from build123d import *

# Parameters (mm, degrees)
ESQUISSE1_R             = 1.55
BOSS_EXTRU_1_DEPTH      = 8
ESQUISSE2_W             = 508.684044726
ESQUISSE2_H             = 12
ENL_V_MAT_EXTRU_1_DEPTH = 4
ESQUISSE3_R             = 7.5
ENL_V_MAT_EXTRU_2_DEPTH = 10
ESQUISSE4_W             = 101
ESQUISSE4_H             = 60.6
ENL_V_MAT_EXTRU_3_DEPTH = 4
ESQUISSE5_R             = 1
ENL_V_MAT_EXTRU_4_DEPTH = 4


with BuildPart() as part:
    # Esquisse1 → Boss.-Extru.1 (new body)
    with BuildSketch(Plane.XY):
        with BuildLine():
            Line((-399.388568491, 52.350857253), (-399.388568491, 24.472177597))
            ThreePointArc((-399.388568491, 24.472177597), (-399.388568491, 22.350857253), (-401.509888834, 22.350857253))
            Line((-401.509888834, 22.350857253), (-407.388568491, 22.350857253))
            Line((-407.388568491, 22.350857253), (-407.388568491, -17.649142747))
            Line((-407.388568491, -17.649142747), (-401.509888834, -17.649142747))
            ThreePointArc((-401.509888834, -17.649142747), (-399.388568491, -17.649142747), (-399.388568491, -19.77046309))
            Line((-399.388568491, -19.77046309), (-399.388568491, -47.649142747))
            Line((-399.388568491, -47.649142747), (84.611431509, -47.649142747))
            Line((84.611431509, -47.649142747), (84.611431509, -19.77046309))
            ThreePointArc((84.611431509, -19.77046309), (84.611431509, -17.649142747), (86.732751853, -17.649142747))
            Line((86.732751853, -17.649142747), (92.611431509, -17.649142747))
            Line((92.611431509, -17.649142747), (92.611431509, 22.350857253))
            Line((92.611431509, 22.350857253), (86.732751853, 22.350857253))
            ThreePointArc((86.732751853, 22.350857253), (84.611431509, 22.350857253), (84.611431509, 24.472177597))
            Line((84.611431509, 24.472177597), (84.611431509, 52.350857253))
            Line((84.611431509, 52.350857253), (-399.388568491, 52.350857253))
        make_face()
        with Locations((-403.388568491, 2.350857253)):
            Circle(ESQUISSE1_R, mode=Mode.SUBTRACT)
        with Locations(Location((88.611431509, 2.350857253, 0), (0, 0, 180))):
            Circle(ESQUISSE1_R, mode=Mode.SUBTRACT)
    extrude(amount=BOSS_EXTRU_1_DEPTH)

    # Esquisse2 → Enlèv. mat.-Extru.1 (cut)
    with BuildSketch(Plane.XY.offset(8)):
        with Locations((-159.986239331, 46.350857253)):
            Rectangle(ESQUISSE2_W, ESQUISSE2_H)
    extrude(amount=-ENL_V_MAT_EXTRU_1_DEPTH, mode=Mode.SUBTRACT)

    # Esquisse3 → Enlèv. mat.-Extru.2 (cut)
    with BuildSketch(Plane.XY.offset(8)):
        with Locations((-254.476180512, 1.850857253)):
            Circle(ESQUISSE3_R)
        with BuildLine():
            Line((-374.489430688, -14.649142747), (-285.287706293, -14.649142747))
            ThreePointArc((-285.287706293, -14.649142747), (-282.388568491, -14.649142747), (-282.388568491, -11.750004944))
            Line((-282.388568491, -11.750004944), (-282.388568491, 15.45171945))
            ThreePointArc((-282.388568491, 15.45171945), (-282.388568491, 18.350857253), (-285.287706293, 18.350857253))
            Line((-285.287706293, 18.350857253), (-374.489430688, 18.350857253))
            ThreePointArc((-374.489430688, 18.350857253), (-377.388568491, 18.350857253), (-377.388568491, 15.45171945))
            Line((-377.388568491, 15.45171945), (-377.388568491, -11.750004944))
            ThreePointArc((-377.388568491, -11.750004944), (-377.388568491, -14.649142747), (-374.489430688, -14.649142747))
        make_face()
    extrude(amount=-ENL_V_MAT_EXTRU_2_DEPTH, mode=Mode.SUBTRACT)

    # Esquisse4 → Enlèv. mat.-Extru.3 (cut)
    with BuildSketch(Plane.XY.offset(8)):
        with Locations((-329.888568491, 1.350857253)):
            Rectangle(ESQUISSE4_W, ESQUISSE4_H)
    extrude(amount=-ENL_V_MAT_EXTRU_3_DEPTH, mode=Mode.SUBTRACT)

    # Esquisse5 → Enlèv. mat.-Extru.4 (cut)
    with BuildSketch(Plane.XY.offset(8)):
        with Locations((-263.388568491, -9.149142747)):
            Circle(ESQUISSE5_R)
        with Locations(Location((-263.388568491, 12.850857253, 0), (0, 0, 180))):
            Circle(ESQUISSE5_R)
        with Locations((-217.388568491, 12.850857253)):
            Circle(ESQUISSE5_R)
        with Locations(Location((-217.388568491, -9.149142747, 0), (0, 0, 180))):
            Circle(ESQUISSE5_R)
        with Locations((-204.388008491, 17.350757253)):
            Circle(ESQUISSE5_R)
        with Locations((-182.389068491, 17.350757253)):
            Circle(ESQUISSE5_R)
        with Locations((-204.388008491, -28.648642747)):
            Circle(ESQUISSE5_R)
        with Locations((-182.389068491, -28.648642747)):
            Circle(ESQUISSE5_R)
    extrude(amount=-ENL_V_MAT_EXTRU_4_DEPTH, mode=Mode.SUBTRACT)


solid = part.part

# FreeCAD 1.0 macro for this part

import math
import FreeCAD as App
import Part
import Sketcher

V = App.Vector
Q = App.Units.Quantity

doc = App.newDocument("Part")
body = doc.addObject("PartDesign::Body", "Body")

# Sketch on XY plane
sketch1 = body.newObject("Sketcher::SketchObject", "Sketch")
sketch1.AttachmentSupport = (doc.getObject("XY_Plane"), [""])
sketch1.MapMode = "FlatFace"
sketch1.addGeometry(Part.LineSegment(V(-399.388568, 52.350857, 0), V(-399.388568, 24.472178, 0)), False)
sketch1.addGeometry(Part.ArcOfCircle(Part.Circle(V(-400.449229, 23.411517, 0), V(0, 0, 1), 1.5), math.radians(-135), math.radians(45)), False)
sketch1.addGeometry(Part.LineSegment(V(-401.509889, 22.350857, 0), V(-407.388568, 22.350857, 0)), False)
sketch1.addGeometry(Part.LineSegment(V(-407.388568, 22.350857, 0), V(-407.388568, -17.649143, 0)), False)
sketch1.addGeometry(Part.LineSegment(V(-407.388568, -17.649143, 0), V(-401.509889, -17.649143, 0)), False)
sketch1.addGeometry(Part.ArcOfCircle(Part.Circle(V(-400.449229, -18.709803, 0), V(0, 0, 1), 1.5), math.radians(-45), math.radians(135)), False)
sketch1.addGeometry(Part.LineSegment(V(-399.388568, -19.770463, 0), V(-399.388568, -47.649143, 0)), False)
sketch1.addGeometry(Part.LineSegment(V(-399.388568, -47.649143, 0), V(84.611432, -47.649143, 0)), False)
sketch1.addGeometry(Part.LineSegment(V(84.611432, -47.649143, 0), V(84.611432, -19.770463, 0)), False)
sketch1.addGeometry(Part.ArcOfCircle(Part.Circle(V(85.672092, -18.709803, 0), V(0, 0, 1), 1.5), math.radians(45), math.radians(225)), False)
sketch1.addGeometry(Part.LineSegment(V(86.732752, -17.649143, 0), V(92.611432, -17.649143, 0)), False)
sketch1.addGeometry(Part.LineSegment(V(92.611432, -17.649143, 0), V(92.611432, 22.350857, 0)), False)
sketch1.addGeometry(Part.LineSegment(V(92.611432, 22.350857, 0), V(86.732752, 22.350857, 0)), False)
sketch1.addGeometry(Part.ArcOfCircle(Part.Circle(V(85.672092, 23.411517, 0), V(0, 0, 1), 1.5), math.radians(135), math.radians(315)), False)
sketch1.addGeometry(Part.LineSegment(V(84.611432, 24.472178, 0), V(84.611432, 52.350857, 0)), False)
sketch1.addGeometry(Part.LineSegment(V(84.611432, 52.350857, 0), V(-399.388568, 52.350857, 0)), False)
sketch1.addGeometry(Part.Circle(V(-403.388568, 2.350857, 0), V(0, 0, 1), 1.55), False)
sketch1.addGeometry(Part.Circle(V(88.611432, 2.350857, 0), V(0, 0, 1), 1.55), False)
sketch1.addConstraint(Sketcher.Constraint("Coincident", 0, 2, 1, 2))
sketch1.addConstraint(Sketcher.Constraint("Coincident", 1, 1, 2, 1))
sketch1.addConstraint(Sketcher.Constraint("Coincident", 2, 2, 3, 1))
sketch1.addConstraint(Sketcher.Constraint("Coincident", 3, 2, 4, 1))
sketch1.addConstraint(Sketcher.Constraint("Coincident", 4, 2, 5, 2))
sketch1.addConstraint(Sketcher.Constraint("Coincident", 5, 1, 6, 1))
sketch1.addConstraint(Sketcher.Constraint("Coincident", 6, 2, 7, 1))
sketch1.addConstraint(Sketcher.Constraint("Coincident", 7, 2, 8, 1))
sketch1.addConstraint(Sketcher.Constraint("Coincident", 8, 2, 9, 2))
sketch1.addConstraint(Sketcher.Constraint("Coincident", 9, 1, 10, 1))
sketch1.addConstraint(Sketcher.Constraint("Coincident", 10, 2, 11, 1))
sketch1.addConstraint(Sketcher.Constraint("Coincident", 11, 2, 12, 1))
sketch1.addConstraint(Sketcher.Constraint("Coincident", 12, 2, 13, 2))
sketch1.addConstraint(Sketcher.Constraint("Coincident", 13, 1, 14, 1))
sketch1.addConstraint(Sketcher.Constraint("Coincident", 14, 2, 15, 1))
sketch1.addConstraint(Sketcher.Constraint("Coincident", 15, 2, 0, 1))
sketch1.addConstraint(Sketcher.Constraint("Vertical", 0))
sketch1.addConstraint(Sketcher.Constraint("Horizontal", 2))
sketch1.addConstraint(Sketcher.Constraint("Vertical", 3))
sketch1.addConstraint(Sketcher.Constraint("Horizontal", 4))
sketch1.addConstraint(Sketcher.Constraint("Vertical", 6))
sketch1.addConstraint(Sketcher.Constraint("Horizontal", 7))
sketch1.addConstraint(Sketcher.Constraint("Vertical", 8))
sketch1.addConstraint(Sketcher.Constraint("Horizontal", 10))
sketch1.addConstraint(Sketcher.Constraint("Vertical", 11))
sketch1.addConstraint(Sketcher.Constraint("Horizontal", 12))
sketch1.addConstraint(Sketcher.Constraint("Vertical", 14))
sketch1.addConstraint(Sketcher.Constraint("Horizontal", 15))
sketch1.addConstraint(Sketcher.Constraint("Equal", 1, 5))
sketch1.addConstraint(Sketcher.Constraint("Equal", 5, 9))
sketch1.addConstraint(Sketcher.Constraint("Equal", 9, 13))
sketch1.addConstraint(Sketcher.Constraint("Equal", 16, 17))
sketch1.addConstraint(Sketcher.Constraint("Horizontal", 5, 3, 9, 3))
sketch1.addConstraint(Sketcher.Constraint("Horizontal", 1, 3, 13, 3))
sketch1.addConstraint(Sketcher.Constraint("Horizontal", 16, 3, 17, 3))
sketch1.addConstraint(Sketcher.Constraint("Horizontal", 5, 1, 8, 2))
sketch1.addConstraint(Sketcher.Constraint("Horizontal", 4, 2, 9, 1))
sketch1.addConstraint(Sketcher.Constraint("Horizontal", 2, 2, 11, 2))
sketch1.addConstraint(Sketcher.Constraint("Horizontal", 0, 2, 13, 1))
sketch1.addConstraint(Sketcher.Constraint("Vertical", 1, 3, 5, 3))
sketch1.addConstraint(Sketcher.Constraint("Vertical", 9, 3, 13, 3))
sketch1.addConstraint(Sketcher.Constraint("Vertical", 1, 1, 4, 2))
sketch1.addConstraint(Sketcher.Constraint("Vertical", 0, 2, 5, 1))
sketch1.addConstraint(Sketcher.Constraint("Equal", 4, 10))
sketch1.addConstraint(Sketcher.Constraint("Equal", 0, 6))
sketch1.addConstraint(Sketcher.Constraint("Diameter", 16, Q("3.1 mm")))
sketch1.addConstraint(Sketcher.Constraint("Radius", 1, Q("1.5 mm")))
sketch1.addConstraint(Sketcher.Constraint("DistanceX", 7, 1, 7, 2, Q("484 mm")))
sketch1.addConstraint(Sketcher.Constraint("DistanceY", 3, 2, 3, 1, Q("40 mm")))
sketch1.addConstraint(Sketcher.Constraint("DistanceX", 16, 3, 17, 3, Q("492 mm")))
sketch1.addConstraint(Sketcher.Constraint("DistanceX", 16, 3, 0, 2, Q("4 mm")))
sketch1.addConstraint(Sketcher.Constraint("DistanceY", 16, 3, 1, 1, Q("20 mm")))
sketch1.addConstraint(Sketcher.Constraint("DistanceX", 2, 2, 0, 2, Q("8 mm")))
sketch1.addConstraint(Sketcher.Constraint("DistanceY", 6, 2, 4, 2, Q("30 mm")))
sketch1.addConstraint(Sketcher.Constraint("DistanceX", 2, 2, 2, 1, Q("5.87868 mm")))
sketch1.addConstraint(Sketcher.Constraint("DistanceX", 1, 3, -1, 1, Q("400.449229 mm")))
sketch1.addConstraint(Sketcher.Constraint("DistanceX", -1, 1, 9, 3, Q("85.672092 mm")))
sketch1.addConstraint(Sketcher.Constraint("DistanceY", -1, 1, 1, 3, Q("23.411517 mm")))
pad1 = body.newObject("PartDesign::Pad", "Pad")
pad1.Profile = sketch1
pad1.Length = 8

# Sketch on XY plane
sketch2 = body.newObject("Sketcher::SketchObject", "Sketch001")
sketch2.AttachmentSupport = (doc.getObject("XY_Plane"), [""])
sketch2.MapMode = "FlatFace"
sketch2.AttachmentOffset = App.Placement(V(0, 0, 8), App.Rotation())
sketch2.addGeometry(Part.LineSegment(V(-414.328262, 52.350857, 0), V(-414.328262, 40.350857, 0)), False)
sketch2.addGeometry(Part.LineSegment(V(-414.328262, 40.350857, 0), V(94.355783, 40.350857, 0)), False)
sketch2.addGeometry(Part.LineSegment(V(94.355783, 40.350857, 0), V(94.355783, 52.350857, 0)), False)
sketch2.addGeometry(Part.LineSegment(V(94.355783, 52.350857, 0), V(-414.328262, 52.350857, 0)), False)
sketch2.addConstraint(Sketcher.Constraint("Coincident", 0, 2, 1, 1))
sketch2.addConstraint(Sketcher.Constraint("Coincident", 1, 2, 2, 1))
sketch2.addConstraint(Sketcher.Constraint("Coincident", 2, 2, 3, 1))
sketch2.addConstraint(Sketcher.Constraint("Coincident", 3, 2, 0, 1))
sketch2.addConstraint(Sketcher.Constraint("Vertical", 0))
sketch2.addConstraint(Sketcher.Constraint("Horizontal", 1))
sketch2.addConstraint(Sketcher.Constraint("Vertical", 2))
sketch2.addConstraint(Sketcher.Constraint("Horizontal", 3))
sketch2.addConstraint(Sketcher.Constraint("DistanceY", 0, 2, 0, 1, Q("12 mm")))
sketch2.addConstraint(Sketcher.Constraint("DistanceX", 1, 1, 1, 2, Q("508.684045 mm")))
sketch2.addConstraint(Sketcher.Constraint("DistanceX", 0, 2, -1, 1, Q("414.328262 mm")))
sketch2.addConstraint(Sketcher.Constraint("DistanceY", -1, 1, 0, 2, Q("40.350857 mm")))
pocket1 = body.newObject("PartDesign::Pocket", "Pocket")
pocket1.Profile = sketch2
pocket1.Length = 4

# Sketch on XY plane
sketch3 = body.newObject("Sketcher::SketchObject", "Sketch002")
sketch3.AttachmentSupport = (doc.getObject("XY_Plane"), [""])
sketch3.MapMode = "FlatFace"
sketch3.AttachmentOffset = App.Placement(V(0, 0, 8), App.Rotation())
sketch3.addGeometry(Part.Circle(V(-254.476181, 1.850857, 0), V(0, 0, 1), 7.5), False)
sketch3.addGeometry(Part.LineSegment(V(-374.489431, -14.649143, 0), V(-285.287706, -14.649143, 0)), False)
sketch3.addGeometry(Part.ArcOfCircle(Part.Circle(V(-283.838137, -13.199574, 0), V(0, 0, 1), 2.05), math.radians(-135), math.radians(45)), False)
sketch3.addGeometry(Part.LineSegment(V(-282.388568, -11.750005, 0), V(-282.388568, 15.451719, 0)), False)
sketch3.addGeometry(Part.ArcOfCircle(Part.Circle(V(-283.838137, 16.901288, 0), V(0, 0, 1), 2.05), math.radians(-45), math.radians(135)), False)
sketch3.addGeometry(Part.LineSegment(V(-285.287706, 18.350857, 0), V(-374.489431, 18.350857, 0)), False)
sketch3.addGeometry(Part.ArcOfCircle(Part.Circle(V(-375.939, 16.901288, 0), V(0, 0, 1), 2.05), math.radians(45), math.radians(225)), False)
sketch3.addGeometry(Part.LineSegment(V(-377.388568, 15.451719, 0), V(-377.388568, -11.750005, 0)), False)
sketch3.addGeometry(Part.ArcOfCircle(Part.Circle(V(-375.939, -13.199574, 0), V(0, 0, 1), 2.05), math.radians(135), math.radians(315)), False)
sketch3.addConstraint(Sketcher.Constraint("Coincident", 1, 2, 2, 1))
sketch3.addConstraint(Sketcher.Constraint("Coincident", 2, 2, 3, 1))
sketch3.addConstraint(Sketcher.Constraint("Coincident", 3, 2, 4, 1))
sketch3.addConstraint(Sketcher.Constraint("Coincident", 4, 2, 5, 1))
sketch3.addConstraint(Sketcher.Constraint("Coincident", 5, 2, 6, 1))
sketch3.addConstraint(Sketcher.Constraint("Coincident", 6, 2, 7, 1))
sketch3.addConstraint(Sketcher.Constraint("Coincident", 7, 2, 8, 1))
sketch3.addConstraint(Sketcher.Constraint("Coincident", 8, 2, 1, 1))
sketch3.addConstraint(Sketcher.Constraint("Horizontal", 1))
sketch3.addConstraint(Sketcher.Constraint("Vertical", 3))
sketch3.addConstraint(Sketcher.Constraint("Horizontal", 5))
sketch3.addConstraint(Sketcher.Constraint("Vertical", 7))
sketch3.addConstraint(Sketcher.Constraint("Equal", 2, 4))
sketch3.addConstraint(Sketcher.Constraint("Equal", 4, 6))
sketch3.addConstraint(Sketcher.Constraint("Equal", 6, 8))
sketch3.addConstraint(Sketcher.Constraint("Horizontal", 4, 3, 6, 3))
sketch3.addConstraint(Sketcher.Constraint("Horizontal", 2, 3, 8, 3))
sketch3.addConstraint(Sketcher.Constraint("Horizontal", 3, 2, 6, 2))
sketch3.addConstraint(Sketcher.Constraint("Horizontal", 2, 2, 7, 2))
sketch3.addConstraint(Sketcher.Constraint("Vertical", 2, 3, 4, 3))
sketch3.addConstraint(Sketcher.Constraint("Vertical", 1, 2, 4, 2))
sketch3.addConstraint(Sketcher.Constraint("Diameter", 0, Q("15 mm")))
sketch3.addConstraint(Sketcher.Constraint("Radius", 2, Q("2.05 mm")))
sketch3.addConstraint(Sketcher.Constraint("DistanceY", 1, 2, 4, 2, Q("33 mm")))
sketch3.addConstraint(Sketcher.Constraint("DistanceY", 1, 2, 0, 3, Q("16.5 mm")))
sketch3.addConstraint(Sketcher.Constraint("DistanceX", 6, 3, -1, 1, Q("375.939 mm")))
sketch3.addConstraint(Sketcher.Constraint("DistanceX", 1, 1, 1, 2, Q("89.201724 mm")))
sketch3.addConstraint(Sketcher.Constraint("DistanceY", 3, 1, 3, 2, Q("27.201724 mm")))
sketch3.addConstraint(Sketcher.Constraint("DistanceX", 0, 3, -1, 1, Q("254.476181 mm")))
sketch3.addConstraint(Sketcher.Constraint("DistanceY", -1, 1, 4, 3, Q("16.901288 mm")))
sketch3.addConstraint(Sketcher.Constraint("DistanceX", 2, 2, -1, 1, Q("282.388568 mm")))
pocket2 = body.newObject("PartDesign::Pocket", "Pocket001")
pocket2.Profile = sketch3
pocket2.Length = 10

# Sketch on XY plane
sketch4 = body.newObject("Sketcher::SketchObject", "Sketch003")
sketch4.AttachmentSupport = (doc.getObject("XY_Plane"), [""])
sketch4.MapMode = "FlatFace"
sketch4.AttachmentOffset = App.Placement(V(0, 0, 8), App.Rotation())
sketch4.addGeometry(Part.LineSegment(V(-380.388568, 31.650857, 0), V(-380.388568, -28.949143, 0)), False)
sketch4.addGeometry(Part.LineSegment(V(-380.388568, -28.949143, 0), V(-279.388568, -28.949143, 0)), False)
sketch4.addGeometry(Part.LineSegment(V(-279.388568, -28.949143, 0), V(-279.388568, 31.650857, 0)), False)
sketch4.addGeometry(Part.LineSegment(V(-279.388568, 31.650857, 0), V(-380.388568, 31.650857, 0)), False)
sketch4.addConstraint(Sketcher.Constraint("Coincident", 0, 2, 1, 1))
sketch4.addConstraint(Sketcher.Constraint("Coincident", 1, 2, 2, 1))
sketch4.addConstraint(Sketcher.Constraint("Coincident", 2, 2, 3, 1))
sketch4.addConstraint(Sketcher.Constraint("Coincident", 3, 2, 0, 1))
sketch4.addConstraint(Sketcher.Constraint("Vertical", 0))
sketch4.addConstraint(Sketcher.Constraint("Horizontal", 1))
sketch4.addConstraint(Sketcher.Constraint("Vertical", 2))
sketch4.addConstraint(Sketcher.Constraint("Horizontal", 3))
sketch4.addConstraint(Sketcher.Constraint("DistanceX", 1, 1, 1, 2, Q("101 mm")))
sketch4.addConstraint(Sketcher.Constraint("DistanceY", 0, 2, 0, 1, Q("60.6 mm")))
sketch4.addConstraint(Sketcher.Constraint("DistanceX", 0, 2, -1, 1, Q("380.388568 mm")))
sketch4.addConstraint(Sketcher.Constraint("DistanceY", 0, 2, -1, 1, Q("28.949143 mm")))
pocket3 = body.newObject("PartDesign::Pocket", "Pocket002")
pocket3.Profile = sketch4
pocket3.Length = 4

# Sketch on XY plane
sketch5 = body.newObject("Sketcher::SketchObject", "Sketch004")
sketch5.AttachmentSupport = (doc.getObject("XY_Plane"), [""])
sketch5.MapMode = "FlatFace"
sketch5.AttachmentOffset = App.Placement(V(0, 0, 8), App.Rotation())
sketch5.addGeometry(Part.Circle(V(-263.388568, -9.149143, 0), V(0, 0, 1), 1), False)
sketch5.addGeometry(Part.Circle(V(-263.388568, 12.850857, 0), V(0, 0, 1), 1), False)
sketch5.addGeometry(Part.Circle(V(-217.388568, 12.850857, 0), V(0, 0, 1), 1), False)
sketch5.addGeometry(Part.Circle(V(-217.388568, -9.149143, 0), V(0, 0, 1), 1), False)
sketch5.addGeometry(Part.Circle(V(-204.388008, 17.350757, 0), V(0, 0, 1), 1), False)
sketch5.addGeometry(Part.Circle(V(-182.389068, 17.350757, 0), V(0, 0, 1), 1), False)
sketch5.addGeometry(Part.Circle(V(-204.388008, -28.648643, 0), V(0, 0, 1), 1), False)
sketch5.addGeometry(Part.Circle(V(-182.389068, -28.648643, 0), V(0, 0, 1), 1), False)
sketch5.addConstraint(Sketcher.Constraint("Equal", 0, 1))
sketch5.addConstraint(Sketcher.Constraint("Equal", 1, 2))
sketch5.addConstraint(Sketcher.Constraint("Equal", 2, 3))
sketch5.addConstraint(Sketcher.Constraint("Equal", 3, 4))
sketch5.addConstraint(Sketcher.Constraint("Equal", 4, 5))
sketch5.addConstraint(Sketcher.Constraint("Equal", 5, 6))
sketch5.addConstraint(Sketcher.Constraint("Equal", 6, 7))
sketch5.addConstraint(Sketcher.Constraint("Horizontal", 1, 3, 2, 3))
sketch5.addConstraint(Sketcher.Constraint("Horizontal", 0, 3, 3, 3))
sketch5.addConstraint(Sketcher.Constraint("Horizontal", 4, 3, 5, 3))
sketch5.addConstraint(Sketcher.Constraint("Horizontal", 6, 3, 7, 3))
sketch5.addConstraint(Sketcher.Constraint("Vertical", 0, 3, 1, 3))
sketch5.addConstraint(Sketcher.Constraint("Vertical", 2, 3, 3, 3))
sketch5.addConstraint(Sketcher.Constraint("Vertical", 4, 3, 6, 3))
sketch5.addConstraint(Sketcher.Constraint("Vertical", 5, 3, 7, 3))
sketch5.addConstraint(Sketcher.Constraint("Diameter", 0, Q("2 mm")))
sketch5.addConstraint(Sketcher.Constraint("DistanceY", 0, 3, 1, 3, Q("22 mm")))
sketch5.addConstraint(Sketcher.Constraint("DistanceX", 1, 3, 2, 3, Q("46 mm")))
sketch5.addConstraint(Sketcher.Constraint("DistanceY", 2, 3, 4, 3, Q("4.4999 mm")))
sketch5.addConstraint(Sketcher.Constraint("DistanceX", 2, 3, 5, 3, Q("34.9995 mm")))
sketch5.addConstraint(Sketcher.Constraint("DistanceY", 6, 3, 3, 3, Q("19.4995 mm")))
sketch5.addConstraint(Sketcher.Constraint("DistanceX", 0, 3, -1, 1, Q("263.388568 mm")))
sketch5.addConstraint(Sketcher.Constraint("DistanceX", 4, 3, -1, 1, Q("204.388008 mm")))
sketch5.addConstraint(Sketcher.Constraint("DistanceY", 0, 3, -1, 1, Q("9.149143 mm")))
pocket4 = body.newObject("PartDesign::Pocket", "Pocket003")
pocket4.Profile = sketch5
pocket4.Length = 4

doc.recompute()
